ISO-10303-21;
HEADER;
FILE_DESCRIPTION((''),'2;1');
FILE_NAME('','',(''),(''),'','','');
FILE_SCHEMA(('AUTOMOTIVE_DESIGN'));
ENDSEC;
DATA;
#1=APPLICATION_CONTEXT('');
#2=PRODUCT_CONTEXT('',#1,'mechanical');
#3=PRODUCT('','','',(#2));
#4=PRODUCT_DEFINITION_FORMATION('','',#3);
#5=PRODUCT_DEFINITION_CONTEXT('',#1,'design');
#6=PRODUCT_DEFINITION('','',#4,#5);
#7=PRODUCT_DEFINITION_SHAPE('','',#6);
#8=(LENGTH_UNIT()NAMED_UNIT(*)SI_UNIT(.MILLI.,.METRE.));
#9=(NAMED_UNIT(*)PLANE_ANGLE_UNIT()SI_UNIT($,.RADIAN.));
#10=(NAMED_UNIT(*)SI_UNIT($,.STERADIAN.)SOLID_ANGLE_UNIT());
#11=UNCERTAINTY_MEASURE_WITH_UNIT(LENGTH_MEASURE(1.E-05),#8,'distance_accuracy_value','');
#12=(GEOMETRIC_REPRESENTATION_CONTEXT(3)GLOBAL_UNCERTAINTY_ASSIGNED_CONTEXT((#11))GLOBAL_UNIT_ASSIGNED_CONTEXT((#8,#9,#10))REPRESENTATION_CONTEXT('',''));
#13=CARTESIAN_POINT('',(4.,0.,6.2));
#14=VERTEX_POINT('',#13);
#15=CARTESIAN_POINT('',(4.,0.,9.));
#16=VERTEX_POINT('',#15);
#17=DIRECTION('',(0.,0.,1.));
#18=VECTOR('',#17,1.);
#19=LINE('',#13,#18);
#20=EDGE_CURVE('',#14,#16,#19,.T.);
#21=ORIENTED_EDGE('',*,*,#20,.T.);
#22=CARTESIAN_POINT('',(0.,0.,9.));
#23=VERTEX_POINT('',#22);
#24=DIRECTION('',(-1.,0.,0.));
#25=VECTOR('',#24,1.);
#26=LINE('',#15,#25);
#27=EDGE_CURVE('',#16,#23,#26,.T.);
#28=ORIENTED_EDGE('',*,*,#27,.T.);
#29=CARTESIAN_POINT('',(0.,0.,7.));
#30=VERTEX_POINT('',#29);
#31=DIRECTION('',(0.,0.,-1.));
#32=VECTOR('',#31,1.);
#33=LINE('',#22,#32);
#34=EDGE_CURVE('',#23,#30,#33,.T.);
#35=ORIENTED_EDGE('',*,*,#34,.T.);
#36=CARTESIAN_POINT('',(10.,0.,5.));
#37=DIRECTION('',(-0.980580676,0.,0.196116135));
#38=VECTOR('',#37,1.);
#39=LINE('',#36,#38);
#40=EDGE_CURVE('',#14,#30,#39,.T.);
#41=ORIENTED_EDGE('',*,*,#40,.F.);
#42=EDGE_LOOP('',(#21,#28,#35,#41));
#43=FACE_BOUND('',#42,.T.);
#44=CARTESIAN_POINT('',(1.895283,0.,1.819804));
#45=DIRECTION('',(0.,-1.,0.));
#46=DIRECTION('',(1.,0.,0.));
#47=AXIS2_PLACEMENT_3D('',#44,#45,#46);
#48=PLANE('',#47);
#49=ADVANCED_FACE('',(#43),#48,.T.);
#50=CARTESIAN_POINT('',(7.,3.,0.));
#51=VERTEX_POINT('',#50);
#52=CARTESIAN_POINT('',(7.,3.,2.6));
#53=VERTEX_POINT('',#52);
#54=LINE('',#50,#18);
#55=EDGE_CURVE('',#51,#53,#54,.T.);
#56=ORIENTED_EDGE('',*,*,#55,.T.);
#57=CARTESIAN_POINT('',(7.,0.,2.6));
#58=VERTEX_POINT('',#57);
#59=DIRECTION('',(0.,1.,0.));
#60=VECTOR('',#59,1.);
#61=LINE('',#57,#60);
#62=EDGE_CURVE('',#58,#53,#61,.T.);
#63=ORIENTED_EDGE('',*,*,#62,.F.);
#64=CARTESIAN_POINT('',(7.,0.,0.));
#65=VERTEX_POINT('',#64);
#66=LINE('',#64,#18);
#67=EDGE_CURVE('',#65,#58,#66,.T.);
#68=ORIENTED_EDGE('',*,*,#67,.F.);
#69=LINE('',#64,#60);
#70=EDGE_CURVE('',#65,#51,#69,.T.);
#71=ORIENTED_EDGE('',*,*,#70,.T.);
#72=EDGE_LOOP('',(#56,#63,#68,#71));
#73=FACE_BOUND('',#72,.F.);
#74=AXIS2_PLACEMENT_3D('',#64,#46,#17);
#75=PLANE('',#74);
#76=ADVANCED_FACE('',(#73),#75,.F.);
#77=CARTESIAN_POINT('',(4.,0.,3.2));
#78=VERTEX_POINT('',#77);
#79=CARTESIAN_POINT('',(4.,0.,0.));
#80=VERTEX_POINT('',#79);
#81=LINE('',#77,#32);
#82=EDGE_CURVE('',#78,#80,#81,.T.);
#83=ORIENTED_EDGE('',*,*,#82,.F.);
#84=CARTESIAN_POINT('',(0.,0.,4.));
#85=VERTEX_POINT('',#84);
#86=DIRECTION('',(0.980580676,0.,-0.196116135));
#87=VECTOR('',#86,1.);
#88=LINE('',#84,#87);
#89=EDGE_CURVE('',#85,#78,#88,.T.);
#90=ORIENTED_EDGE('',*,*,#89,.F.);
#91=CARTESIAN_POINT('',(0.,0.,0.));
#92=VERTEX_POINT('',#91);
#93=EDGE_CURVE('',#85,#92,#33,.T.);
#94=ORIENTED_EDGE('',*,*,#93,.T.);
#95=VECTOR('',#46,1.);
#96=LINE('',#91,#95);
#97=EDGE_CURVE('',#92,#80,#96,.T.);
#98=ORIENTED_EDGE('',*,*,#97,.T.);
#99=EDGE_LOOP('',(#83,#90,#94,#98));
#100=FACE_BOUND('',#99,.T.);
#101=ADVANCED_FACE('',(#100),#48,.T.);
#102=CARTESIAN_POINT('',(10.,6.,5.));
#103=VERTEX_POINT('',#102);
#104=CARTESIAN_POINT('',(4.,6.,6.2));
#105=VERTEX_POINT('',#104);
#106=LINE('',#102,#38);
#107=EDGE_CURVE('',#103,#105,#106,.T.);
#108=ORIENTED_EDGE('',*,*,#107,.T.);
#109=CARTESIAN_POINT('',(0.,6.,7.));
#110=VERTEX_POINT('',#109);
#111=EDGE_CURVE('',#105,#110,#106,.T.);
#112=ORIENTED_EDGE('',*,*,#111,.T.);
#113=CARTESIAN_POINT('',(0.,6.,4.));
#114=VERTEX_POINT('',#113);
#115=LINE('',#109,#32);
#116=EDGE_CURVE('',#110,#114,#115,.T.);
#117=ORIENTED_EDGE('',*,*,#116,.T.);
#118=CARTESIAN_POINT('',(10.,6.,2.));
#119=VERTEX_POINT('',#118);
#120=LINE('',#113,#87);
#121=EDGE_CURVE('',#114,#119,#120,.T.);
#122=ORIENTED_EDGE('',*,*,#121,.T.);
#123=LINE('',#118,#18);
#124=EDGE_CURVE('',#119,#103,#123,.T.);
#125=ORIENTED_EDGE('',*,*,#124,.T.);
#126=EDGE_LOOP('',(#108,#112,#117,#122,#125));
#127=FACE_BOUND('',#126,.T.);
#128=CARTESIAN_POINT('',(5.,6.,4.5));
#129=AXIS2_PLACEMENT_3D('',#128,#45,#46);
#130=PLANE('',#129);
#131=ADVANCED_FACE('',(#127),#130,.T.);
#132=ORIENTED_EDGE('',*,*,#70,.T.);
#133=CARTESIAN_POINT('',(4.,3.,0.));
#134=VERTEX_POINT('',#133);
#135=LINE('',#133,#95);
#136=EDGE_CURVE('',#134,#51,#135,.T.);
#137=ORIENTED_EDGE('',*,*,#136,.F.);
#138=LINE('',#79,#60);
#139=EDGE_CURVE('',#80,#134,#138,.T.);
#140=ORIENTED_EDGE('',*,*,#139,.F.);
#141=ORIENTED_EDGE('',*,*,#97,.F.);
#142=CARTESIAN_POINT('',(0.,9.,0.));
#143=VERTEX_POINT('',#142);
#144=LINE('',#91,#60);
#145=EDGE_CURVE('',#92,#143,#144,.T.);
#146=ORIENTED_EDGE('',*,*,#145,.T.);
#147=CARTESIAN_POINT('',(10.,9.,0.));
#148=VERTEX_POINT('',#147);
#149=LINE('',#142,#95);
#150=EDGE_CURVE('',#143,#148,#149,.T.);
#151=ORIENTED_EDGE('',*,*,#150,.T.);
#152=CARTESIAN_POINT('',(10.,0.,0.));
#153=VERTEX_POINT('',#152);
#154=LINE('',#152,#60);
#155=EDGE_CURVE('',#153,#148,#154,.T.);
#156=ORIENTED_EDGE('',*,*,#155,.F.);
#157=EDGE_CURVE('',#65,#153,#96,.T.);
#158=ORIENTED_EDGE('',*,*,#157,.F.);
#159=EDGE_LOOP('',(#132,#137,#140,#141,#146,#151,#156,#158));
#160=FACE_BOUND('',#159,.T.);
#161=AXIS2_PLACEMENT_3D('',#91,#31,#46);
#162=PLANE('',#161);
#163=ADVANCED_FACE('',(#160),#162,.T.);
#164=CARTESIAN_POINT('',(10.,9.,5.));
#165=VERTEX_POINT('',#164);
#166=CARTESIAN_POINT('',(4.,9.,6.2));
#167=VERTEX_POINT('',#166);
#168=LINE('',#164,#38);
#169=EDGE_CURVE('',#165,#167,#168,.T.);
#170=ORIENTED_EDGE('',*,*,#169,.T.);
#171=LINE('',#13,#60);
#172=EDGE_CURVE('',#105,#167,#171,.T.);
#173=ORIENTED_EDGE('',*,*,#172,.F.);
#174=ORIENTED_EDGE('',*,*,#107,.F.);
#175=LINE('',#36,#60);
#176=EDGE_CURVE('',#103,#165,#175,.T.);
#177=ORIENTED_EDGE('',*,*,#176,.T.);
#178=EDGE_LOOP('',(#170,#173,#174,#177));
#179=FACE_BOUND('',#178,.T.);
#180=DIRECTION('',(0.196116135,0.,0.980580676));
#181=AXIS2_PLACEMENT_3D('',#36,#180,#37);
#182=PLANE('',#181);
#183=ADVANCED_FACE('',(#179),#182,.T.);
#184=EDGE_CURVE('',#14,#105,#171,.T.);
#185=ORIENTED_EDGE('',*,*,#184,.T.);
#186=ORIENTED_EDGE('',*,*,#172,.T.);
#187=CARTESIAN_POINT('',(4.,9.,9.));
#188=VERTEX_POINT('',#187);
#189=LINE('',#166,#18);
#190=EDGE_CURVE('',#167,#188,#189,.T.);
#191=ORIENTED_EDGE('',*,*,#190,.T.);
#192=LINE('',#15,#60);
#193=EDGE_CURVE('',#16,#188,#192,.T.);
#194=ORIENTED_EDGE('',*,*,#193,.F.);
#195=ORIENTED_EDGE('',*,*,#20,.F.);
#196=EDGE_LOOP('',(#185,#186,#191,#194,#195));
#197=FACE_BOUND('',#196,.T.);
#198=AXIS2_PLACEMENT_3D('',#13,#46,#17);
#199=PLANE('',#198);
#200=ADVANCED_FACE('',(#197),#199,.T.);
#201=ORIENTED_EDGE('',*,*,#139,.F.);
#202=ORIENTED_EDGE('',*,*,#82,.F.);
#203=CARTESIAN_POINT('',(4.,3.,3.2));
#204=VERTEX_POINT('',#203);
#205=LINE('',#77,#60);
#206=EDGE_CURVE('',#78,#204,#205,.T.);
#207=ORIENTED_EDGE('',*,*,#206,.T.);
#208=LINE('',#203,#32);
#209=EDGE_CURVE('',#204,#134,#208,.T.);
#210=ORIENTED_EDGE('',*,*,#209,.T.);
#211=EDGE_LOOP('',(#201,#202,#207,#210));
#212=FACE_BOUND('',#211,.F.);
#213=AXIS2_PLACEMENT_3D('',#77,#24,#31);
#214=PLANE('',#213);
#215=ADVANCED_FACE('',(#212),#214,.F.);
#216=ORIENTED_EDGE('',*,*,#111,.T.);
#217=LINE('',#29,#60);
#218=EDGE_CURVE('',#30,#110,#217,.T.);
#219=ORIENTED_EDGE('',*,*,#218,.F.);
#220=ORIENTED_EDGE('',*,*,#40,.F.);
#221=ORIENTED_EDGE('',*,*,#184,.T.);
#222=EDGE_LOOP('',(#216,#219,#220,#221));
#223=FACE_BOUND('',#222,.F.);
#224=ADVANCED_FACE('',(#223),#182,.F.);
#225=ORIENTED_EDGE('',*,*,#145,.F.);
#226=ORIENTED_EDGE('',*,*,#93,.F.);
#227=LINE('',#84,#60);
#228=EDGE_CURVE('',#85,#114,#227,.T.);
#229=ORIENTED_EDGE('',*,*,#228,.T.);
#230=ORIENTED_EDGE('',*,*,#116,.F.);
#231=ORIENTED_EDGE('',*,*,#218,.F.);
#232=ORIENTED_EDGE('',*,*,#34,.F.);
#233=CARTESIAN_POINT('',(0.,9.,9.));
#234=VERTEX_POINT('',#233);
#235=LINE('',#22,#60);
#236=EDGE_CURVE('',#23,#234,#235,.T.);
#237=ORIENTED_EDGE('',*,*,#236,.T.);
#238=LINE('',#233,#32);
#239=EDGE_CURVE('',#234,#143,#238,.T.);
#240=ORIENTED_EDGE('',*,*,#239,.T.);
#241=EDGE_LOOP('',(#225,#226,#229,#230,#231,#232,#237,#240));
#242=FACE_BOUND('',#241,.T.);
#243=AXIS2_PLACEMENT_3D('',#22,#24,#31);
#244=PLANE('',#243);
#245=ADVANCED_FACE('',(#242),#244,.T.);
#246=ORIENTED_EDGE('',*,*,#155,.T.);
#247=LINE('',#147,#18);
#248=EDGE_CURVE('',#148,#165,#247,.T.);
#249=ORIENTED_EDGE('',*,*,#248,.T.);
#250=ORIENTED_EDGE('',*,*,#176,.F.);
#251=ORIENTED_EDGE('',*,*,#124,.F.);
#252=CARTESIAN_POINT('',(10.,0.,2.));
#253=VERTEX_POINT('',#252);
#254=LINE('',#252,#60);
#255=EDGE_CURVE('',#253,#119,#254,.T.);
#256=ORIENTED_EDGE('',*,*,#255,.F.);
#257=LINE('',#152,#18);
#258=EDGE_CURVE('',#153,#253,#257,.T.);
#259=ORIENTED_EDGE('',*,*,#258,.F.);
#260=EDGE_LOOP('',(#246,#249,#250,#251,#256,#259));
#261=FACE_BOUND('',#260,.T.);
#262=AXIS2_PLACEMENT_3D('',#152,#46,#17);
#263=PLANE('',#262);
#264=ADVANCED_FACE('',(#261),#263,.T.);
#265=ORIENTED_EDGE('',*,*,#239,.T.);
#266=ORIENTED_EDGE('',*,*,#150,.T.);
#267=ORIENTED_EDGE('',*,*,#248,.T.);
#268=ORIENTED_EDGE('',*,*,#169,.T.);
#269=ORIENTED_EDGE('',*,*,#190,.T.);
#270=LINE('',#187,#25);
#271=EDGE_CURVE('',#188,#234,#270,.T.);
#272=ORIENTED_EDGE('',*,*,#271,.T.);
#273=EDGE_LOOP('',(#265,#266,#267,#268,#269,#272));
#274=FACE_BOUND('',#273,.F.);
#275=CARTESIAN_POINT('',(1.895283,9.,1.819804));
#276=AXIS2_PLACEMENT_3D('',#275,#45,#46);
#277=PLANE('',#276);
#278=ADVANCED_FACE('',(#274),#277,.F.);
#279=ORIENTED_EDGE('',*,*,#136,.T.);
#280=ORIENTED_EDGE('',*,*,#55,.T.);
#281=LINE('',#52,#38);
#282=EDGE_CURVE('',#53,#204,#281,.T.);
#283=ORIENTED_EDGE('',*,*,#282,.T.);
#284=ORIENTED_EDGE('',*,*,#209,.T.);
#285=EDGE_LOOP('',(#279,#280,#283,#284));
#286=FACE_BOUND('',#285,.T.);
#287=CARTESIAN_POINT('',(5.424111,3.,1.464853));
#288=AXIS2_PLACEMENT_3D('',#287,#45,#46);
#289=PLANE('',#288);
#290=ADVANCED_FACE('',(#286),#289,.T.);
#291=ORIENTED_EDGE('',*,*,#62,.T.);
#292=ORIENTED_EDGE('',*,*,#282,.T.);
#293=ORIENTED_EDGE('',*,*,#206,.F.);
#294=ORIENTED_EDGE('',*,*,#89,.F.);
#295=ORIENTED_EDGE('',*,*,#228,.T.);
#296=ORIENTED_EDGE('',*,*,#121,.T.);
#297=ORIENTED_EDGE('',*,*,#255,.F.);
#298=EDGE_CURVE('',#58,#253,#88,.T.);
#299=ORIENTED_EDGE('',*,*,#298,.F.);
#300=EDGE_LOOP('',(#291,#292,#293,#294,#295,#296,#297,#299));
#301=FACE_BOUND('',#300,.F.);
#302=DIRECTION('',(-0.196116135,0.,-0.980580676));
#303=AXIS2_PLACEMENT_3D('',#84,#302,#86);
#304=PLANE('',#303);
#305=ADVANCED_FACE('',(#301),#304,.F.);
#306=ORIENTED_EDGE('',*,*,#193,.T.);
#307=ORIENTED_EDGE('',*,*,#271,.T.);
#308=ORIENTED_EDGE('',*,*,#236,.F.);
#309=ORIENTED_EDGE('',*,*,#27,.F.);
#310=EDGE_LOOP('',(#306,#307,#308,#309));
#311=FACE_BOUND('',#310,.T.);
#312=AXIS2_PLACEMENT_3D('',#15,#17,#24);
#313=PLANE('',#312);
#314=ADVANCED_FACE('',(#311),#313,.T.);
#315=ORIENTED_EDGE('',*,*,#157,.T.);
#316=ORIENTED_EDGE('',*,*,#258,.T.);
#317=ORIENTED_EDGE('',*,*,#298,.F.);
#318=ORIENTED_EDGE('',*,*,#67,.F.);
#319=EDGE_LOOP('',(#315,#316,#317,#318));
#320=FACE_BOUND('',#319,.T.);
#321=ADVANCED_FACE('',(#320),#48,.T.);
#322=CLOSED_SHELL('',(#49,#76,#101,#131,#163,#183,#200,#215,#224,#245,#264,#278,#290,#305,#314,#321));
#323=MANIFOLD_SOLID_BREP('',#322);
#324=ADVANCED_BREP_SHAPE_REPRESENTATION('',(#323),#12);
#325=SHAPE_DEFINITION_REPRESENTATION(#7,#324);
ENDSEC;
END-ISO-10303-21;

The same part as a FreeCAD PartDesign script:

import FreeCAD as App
import Part
import Sketcher
from FreeCAD import Vector
Q = App.Units.Quantity

doc = App.newDocument("Part")
body = doc.addObject("PartDesign::Body", "Body")

# Sketch on XZ plane
sketch1 = body.newObject("Sketcher::SketchObject", "Sketch")
sketch1.AttachmentSupport = (doc.getObject("XZ_Plane"), [""])
sketch1.MapMode = "FlatFace"
sketch1.addGeometry([
    Part.LineSegment(Vector(0, 0, 0), Vector(10, 0, 0)),  # 0
    Part.LineSegment(Vector(10, 0, 0), Vector(10, 5, 0)),  # 1
    Part.LineSegment(Vector(10, 5, 0), Vector(4, 6.2, 0)),  # 2
    Part.LineSegment(Vector(4, 6.2, 0), Vector(4, 9, 0)),  # 3
    Part.LineSegment(Vector(4, 9, 0), Vector(0, 9, 0)),  # 4
    Part.LineSegment(Vector(0, 9, 0), Vector(0, 0, 0)),  # 5
], False)
sketch1.addConstraint([
    Sketcher.Constraint("Coincident", 0, 2, 1, 1),
    Sketcher.Constraint("Coincident", 1, 2, 2, 1),
    Sketcher.Constraint("Coincident", 2, 2, 3, 1),
    Sketcher.Constraint("Coincident", 3, 2, 4, 1),
    Sketcher.Constraint("Coincident", 4, 2, 5, 1),
    Sketcher.Constraint("Coincident", 5, 2, 0, 1),
    Sketcher.Constraint("Horizontal", 0),
    Sketcher.Constraint("Vertical", 1),
    Sketcher.Constraint("Vertical", 3),
    Sketcher.Constraint("Horizontal", 4),
    Sketcher.Constraint("Vertical", 5),
    Sketcher.Constraint("Coincident", 5, 2, -1, 1),
    Sketcher.Constraint("DistanceX", 0, 1, 0, 2, Q("10 mm")),
    Sketcher.Constraint("DistanceX", 4, 2, 4, 1, Q("4 mm")),
    Sketcher.Constraint("DistanceY", 1, 1, 1, 2, Q("5 mm")),
    Sketcher.Constraint("DistanceY", 5, 2, 5, 1, Q("9 mm")),
    Sketcher.Constraint("DistanceY", 3, 1, 3, 2, Q("2.8 mm")),
])
pad1 = body.newObject("PartDesign::Pad", "Pad")
pad1.Profile = sketch1
pad1.Length = 9
pad1.Reversed = True

# Sketch on XZ plane
sketch2 = body.newObject("Sketcher::SketchObject", "Sketch001")
sketch2.AttachmentSupport = (doc.getObject("XZ_Plane"), [""])
sketch2.MapMode = "FlatFace"
sketch2.addGeometry([
    Part.LineSegment(Vector(0, 7, 0), Vector(0, 4, 0)),
    Part.LineSegment(Vector(0, 4, 0), Vector(10, 2, 0)),
    Part.LineSegment(Vector(10, 2, 0), Vector(10, 5, 0)),
    Part.LineSegment(Vector(10, 5, 0), Vector(0, 7, 0)),
], False)
sketch2.addConstraint([
    Sketcher.Constraint("Coincident", 0, 2, 1, 1),
    Sketcher.Constraint("Coincident", 1, 2, 2, 1),
    Sketcher.Constraint("Coincident", 2, 2, 3, 1),
    Sketcher.Constraint("Coincident", 3, 2, 0, 1),
    Sketcher.Constraint("Vertical", 0),
    Sketcher.Constraint("Vertical", 2),
    Sketcher.Constraint("PointOnObject", 0, 2, -2),
    Sketcher.Constraint("Parallel", 1, 3),
    Sketcher.Constraint("DistanceY", 0, 2, 0, 1, Q("3 mm")),
    Sketcher.Constraint("DistanceY", -1, 1, 0, 2, Q("4 mm")),
    Sketcher.Constraint("DistanceX", -1, 1, 1, 2, Q("10 mm")),
    Sketcher.Constraint("DistanceY", -1, 1, 1, 2, Q("2 mm")),
])
pocket1 = body.newObject("PartDesign::Pocket", "Pocket")
pocket1.Profile = sketch2
pocket1.Length = 6

# Sketch on XZ plane
sketch3 = body.newObject("Sketcher::SketchObject", "Sketch002")
sketch3.AttachmentSupport = (doc.getObject("XZ_Plane"), [""])
sketch3.MapMode = "FlatFace"
sketch3.addGeometry([
    Part.LineSegment(Vector(4, 3.2, 0), Vector(4, 0, 0)),
    Part.LineSegment(Vector(4, 0, 0), Vector(7, 0, 0)),
    Part.LineSegment(Vector(7, 0, 0), Vector(7, 2.6, 0)),
    Part.LineSegment(Vector(7, 2.6, 0), Vector(4, 3.2, 0)),
], False)
sketch3.addConstraint([
    Sketcher.Constraint("Coincident", 0, 2, 1, 1),
    Sketcher.Constraint("Coincident", 1, 2, 2, 1),
    Sketcher.Constraint("Coincident", 2, 2, 3, 1),
    Sketcher.Constraint("Coincident", 3, 2, 0, 1),
    Sketcher.Constraint("Vertical", 0),
    Sketcher.Constraint("Horizontal", 1),
    Sketcher.Constraint("Vertical", 2),
    Sketcher.Constraint("PointOnObject", 0, 2, -1),
    Sketcher.Constraint("DistanceX", 1, 1, 1, 2, Q("3 mm")),
    Sketcher.Constraint("DistanceY", 0, 2, 0, 1, Q("3.2 mm")),
    Sketcher.Constraint("DistanceY", 2, 1, 2, 2, Q("2.6 mm")),
    Sketcher.Constraint("DistanceX", -1, 1, 0, 2, Q("4 mm")),
])
pocket2 = body.newObject("PartDesign::Pocket", "Pocket001")
pocket2.Profile = sketch3
pocket2.Length = 3

doc.recompute()
